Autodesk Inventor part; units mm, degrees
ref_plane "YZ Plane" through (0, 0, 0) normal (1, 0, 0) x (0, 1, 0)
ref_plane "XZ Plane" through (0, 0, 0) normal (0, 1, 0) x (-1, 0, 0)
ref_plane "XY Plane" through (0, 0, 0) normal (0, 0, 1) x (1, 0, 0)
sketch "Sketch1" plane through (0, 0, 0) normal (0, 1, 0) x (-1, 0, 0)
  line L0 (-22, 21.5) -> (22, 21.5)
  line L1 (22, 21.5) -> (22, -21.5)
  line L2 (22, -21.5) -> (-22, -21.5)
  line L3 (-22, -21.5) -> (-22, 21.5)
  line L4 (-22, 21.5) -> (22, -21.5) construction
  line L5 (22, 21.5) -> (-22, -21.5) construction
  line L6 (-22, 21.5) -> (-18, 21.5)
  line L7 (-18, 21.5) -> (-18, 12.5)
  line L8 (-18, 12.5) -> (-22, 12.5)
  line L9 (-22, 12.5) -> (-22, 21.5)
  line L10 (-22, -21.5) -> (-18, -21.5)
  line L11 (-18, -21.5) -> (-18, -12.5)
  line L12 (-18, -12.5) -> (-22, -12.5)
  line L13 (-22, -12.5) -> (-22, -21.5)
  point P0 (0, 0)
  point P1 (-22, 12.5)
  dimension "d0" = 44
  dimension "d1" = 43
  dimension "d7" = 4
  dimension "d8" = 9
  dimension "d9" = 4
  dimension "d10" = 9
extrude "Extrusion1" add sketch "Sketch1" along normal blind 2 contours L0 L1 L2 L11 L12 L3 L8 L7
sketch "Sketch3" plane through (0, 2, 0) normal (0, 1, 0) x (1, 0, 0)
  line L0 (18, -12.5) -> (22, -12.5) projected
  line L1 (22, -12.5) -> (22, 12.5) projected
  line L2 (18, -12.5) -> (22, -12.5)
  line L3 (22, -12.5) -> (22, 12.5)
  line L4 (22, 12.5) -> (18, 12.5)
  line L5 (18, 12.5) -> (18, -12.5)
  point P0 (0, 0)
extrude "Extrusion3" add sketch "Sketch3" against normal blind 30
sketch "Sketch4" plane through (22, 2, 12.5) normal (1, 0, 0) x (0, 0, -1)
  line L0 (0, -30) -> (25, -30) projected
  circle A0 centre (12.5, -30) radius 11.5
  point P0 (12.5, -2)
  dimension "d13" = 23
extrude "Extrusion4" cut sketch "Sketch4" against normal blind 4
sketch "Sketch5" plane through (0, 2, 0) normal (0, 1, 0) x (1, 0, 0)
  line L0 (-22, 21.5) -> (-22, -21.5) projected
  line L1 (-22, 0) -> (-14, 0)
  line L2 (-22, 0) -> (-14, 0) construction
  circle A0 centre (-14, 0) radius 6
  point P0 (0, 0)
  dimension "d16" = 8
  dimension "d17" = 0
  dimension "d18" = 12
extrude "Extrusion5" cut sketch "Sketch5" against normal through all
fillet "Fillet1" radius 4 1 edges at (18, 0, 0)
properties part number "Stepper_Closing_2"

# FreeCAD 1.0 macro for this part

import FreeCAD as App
import Part
import Sketcher

V = App.Vector


def edges_at(feature, points):
    """Names of the edges that pass closest to the given points."""
    edges = feature.Shape.Edges
    near = lambda p: min(range(len(edges)), key=lambda i: edges[i].distToShape(Part.Vertex(*p))[0])
    return sorted({f"Edge{near(p) + 1}" for p in points})

doc = App.newDocument("Part")
body = doc.addObject("PartDesign::Body", "Body")

sketch1 = doc.addObject("Sketcher::SketchObject", "Sketch")
body.addObject(sketch1)
sketch1.AttachmentSupport = (doc.XZ_Plane, [""])
sketch1.MapMode = "FlatFace"
sketch1.addGeometry([
    Part.LineSegment(V(-22, 21.5, 0), V(18, 21.5, 0)),
    Part.LineSegment(V(18, 21.5, 0), V(18, 12.5, 0)),
    Part.LineSegment(V(18, 12.5, 0), V(22, 12.5, 0)),
    Part.LineSegment(V(22, 12.5, 0), V(22, -12.5, 0)),
    Part.LineSegment(V(22, -12.5, 0), V(18, -12.5, 0)),
    Part.LineSegment(V(18, -12.5, 0), V(18, -21.5, 0)),
    Part.LineSegment(V(18, -21.5, 0), V(-22, -21.5, 0)),
    Part.LineSegment(V(-22, -21.5, 0), V(-22, 21.5, 0)),
], False)
sketch1.addConstraint([
    Sketcher.Constraint("Coincident", 0, 2, 1, 1),
    Sketcher.Constraint("Coincident", 1, 2, 2, 1),
    Sketcher.Constraint("Coincident", 2, 2, 3, 1),
    Sketcher.Constraint("Coincident", 3, 2, 4, 1),
    Sketcher.Constraint("Coincident", 4, 2, 5, 1),
    Sketcher.Constraint("Coincident", 5, 2, 6, 1),
    Sketcher.Constraint("Coincident", 6, 2, 7, 1),
    Sketcher.Constraint("Coincident", 7, 2, 0, 1),
    Sketcher.Constraint("Horizontal", 0),
    Sketcher.Constraint("Vertical", 1),
    Sketcher.Constraint("Horizontal", 2),
    Sketcher.Constraint("Vertical", 3),
    Sketcher.Constraint("Horizontal", 4),
    Sketcher.Constraint("Vertical", 5),
    Sketcher.Constraint("Horizontal", 6),
    Sketcher.Constraint("Vertical", 7),
    Sketcher.Constraint("Symmetric", 1, 2, 4, 2, -1),
    Sketcher.Constraint("Equal", 1, 5),
    Sketcher.Constraint("DistanceX", 2, 1, 2, 2, 4.0),
    Sketcher.Constraint("DistanceY", 1, 2, 1, 1, 9.0),
    Sketcher.Constraint("DistanceY", 7, 1, 7, 2, 43.0),
    Sketcher.Constraint("DistanceX", 6, 2, 3, 2, 44.0),
    Sketcher.Constraint("DistanceX", -1, 1, 0, 2, 18.0),
])
pad1 = doc.addObject("PartDesign::Pad", "Pad")
body.addObject(pad1)
pad1.Profile = sketch1
pad1.Length = 2
pad1.Reversed = True

sketch2 = doc.addObject("Sketcher::SketchObject", "Sketch001")
body.addObject(sketch2)
sketch2.AttachmentSupport = (doc.XZ_Plane, [""])
sketch2.MapMode = "FlatFace"
sketch2.AttachmentOffset = App.Placement(V(0, 0, -2), App.Rotation())
sketch2.addGeometry([
    Part.LineSegment(V(18, -12.5, 0), V(18, 12.5, 0)),
    Part.LineSegment(V(18, 12.5, 0), V(22, 12.5, 0)),
    Part.LineSegment(V(22, 12.5, 0), V(22, -12.5, 0)),
    Part.LineSegment(V(22, -12.5, 0), V(18, -12.5, 0)),
], False)
sketch2.addConstraint([
    Sketcher.Constraint("Coincident", 0, 2, 1, 1),
    Sketcher.Constraint("Coincident", 1, 2, 2, 1),
    Sketcher.Constraint("Coincident", 2, 2, 3, 1),
    Sketcher.Constraint("Coincident", 3, 2, 0, 1),
    Sketcher.Constraint("Vertical", 0),
    Sketcher.Constraint("Horizontal", 1),
    Sketcher.Constraint("Vertical", 2),
    Sketcher.Constraint("Horizontal", 3),
    Sketcher.Constraint("DistanceX", 1, 1, 1, 2, 4.0),
    Sketcher.Constraint("DistanceY", 0, 1, 0, 2, 25.0),
    Sketcher.Constraint("DistanceX", -1, 1, 0, 2, 18.0),
    Sketcher.Constraint("DistanceY", -1, 1, 0, 2, 12.5),
])
pad2 = doc.addObject("PartDesign::Pad", "Pad001")
body.addObject(pad2)
pad2.Profile = sketch2
pad2.Length = 30

sketch3 = doc.addObject("Sketcher::SketchObject", "Sketch002")
body.addObject(sketch3)
sketch3.AttachmentSupport = (doc.YZ_Plane, [""])
sketch3.MapMode = "FlatFace"
sketch3.AttachmentOffset = App.Placement(V(0, 0, 22), App.Rotation())
sketch3.addGeometry(Part.Circle(V(-28, 0, 0), V(0, 0, 1), 12), False)
sketch3.addConstraint([
    Sketcher.Constraint("PointOnObject", 0, 3, -1),
    Sketcher.Constraint("Diameter", 0, 23.0),
    Sketcher.Constraint("DistanceX", 0, 3, -1, 1, 28.0),
])
pocket1 = doc.addObject("PartDesign::Pocket", "Pocket")
body.addObject(pocket1)
pocket1.Profile = sketch3
pocket1.Length = 4

sketch4 = doc.addObject("Sketcher::SketchObject", "Sketch003")
body.addObject(sketch4)
sketch4.AttachmentSupport = (doc.XZ_Plane, [""])
sketch4.MapMode = "FlatFace"
sketch4.AttachmentOffset = App.Placement(V(0, 0, -2), App.Rotation())
sketch4.addGeometry(Part.Circle(V(-14, 0, 0), V(0, 0, 1), 6), False)
sketch4.addConstraint([
    Sketcher.Constraint("PointOnObject", 0, 3, -1),
    Sketcher.Constraint("Diameter", 0, 12.0),
    Sketcher.Constraint("DistanceX", 0, 3, -1, 1, 14.0),
])
pocket2 = doc.addObject("PartDesign::Pocket", "Pocket001")
body.addObject(pocket2)
pocket2.Profile = sketch4
pocket2.Type = "ThroughAll"
pocket2.Reversed = True
doc.recompute()

fillet = doc.addObject("PartDesign::Fillet", "Fillet")
body.addObject(fillet)
fillet.Base = (pocket2, edges_at(pocket2, [(18, 0, 0)]))
fillet.Radius = 4

doc.recompute()
